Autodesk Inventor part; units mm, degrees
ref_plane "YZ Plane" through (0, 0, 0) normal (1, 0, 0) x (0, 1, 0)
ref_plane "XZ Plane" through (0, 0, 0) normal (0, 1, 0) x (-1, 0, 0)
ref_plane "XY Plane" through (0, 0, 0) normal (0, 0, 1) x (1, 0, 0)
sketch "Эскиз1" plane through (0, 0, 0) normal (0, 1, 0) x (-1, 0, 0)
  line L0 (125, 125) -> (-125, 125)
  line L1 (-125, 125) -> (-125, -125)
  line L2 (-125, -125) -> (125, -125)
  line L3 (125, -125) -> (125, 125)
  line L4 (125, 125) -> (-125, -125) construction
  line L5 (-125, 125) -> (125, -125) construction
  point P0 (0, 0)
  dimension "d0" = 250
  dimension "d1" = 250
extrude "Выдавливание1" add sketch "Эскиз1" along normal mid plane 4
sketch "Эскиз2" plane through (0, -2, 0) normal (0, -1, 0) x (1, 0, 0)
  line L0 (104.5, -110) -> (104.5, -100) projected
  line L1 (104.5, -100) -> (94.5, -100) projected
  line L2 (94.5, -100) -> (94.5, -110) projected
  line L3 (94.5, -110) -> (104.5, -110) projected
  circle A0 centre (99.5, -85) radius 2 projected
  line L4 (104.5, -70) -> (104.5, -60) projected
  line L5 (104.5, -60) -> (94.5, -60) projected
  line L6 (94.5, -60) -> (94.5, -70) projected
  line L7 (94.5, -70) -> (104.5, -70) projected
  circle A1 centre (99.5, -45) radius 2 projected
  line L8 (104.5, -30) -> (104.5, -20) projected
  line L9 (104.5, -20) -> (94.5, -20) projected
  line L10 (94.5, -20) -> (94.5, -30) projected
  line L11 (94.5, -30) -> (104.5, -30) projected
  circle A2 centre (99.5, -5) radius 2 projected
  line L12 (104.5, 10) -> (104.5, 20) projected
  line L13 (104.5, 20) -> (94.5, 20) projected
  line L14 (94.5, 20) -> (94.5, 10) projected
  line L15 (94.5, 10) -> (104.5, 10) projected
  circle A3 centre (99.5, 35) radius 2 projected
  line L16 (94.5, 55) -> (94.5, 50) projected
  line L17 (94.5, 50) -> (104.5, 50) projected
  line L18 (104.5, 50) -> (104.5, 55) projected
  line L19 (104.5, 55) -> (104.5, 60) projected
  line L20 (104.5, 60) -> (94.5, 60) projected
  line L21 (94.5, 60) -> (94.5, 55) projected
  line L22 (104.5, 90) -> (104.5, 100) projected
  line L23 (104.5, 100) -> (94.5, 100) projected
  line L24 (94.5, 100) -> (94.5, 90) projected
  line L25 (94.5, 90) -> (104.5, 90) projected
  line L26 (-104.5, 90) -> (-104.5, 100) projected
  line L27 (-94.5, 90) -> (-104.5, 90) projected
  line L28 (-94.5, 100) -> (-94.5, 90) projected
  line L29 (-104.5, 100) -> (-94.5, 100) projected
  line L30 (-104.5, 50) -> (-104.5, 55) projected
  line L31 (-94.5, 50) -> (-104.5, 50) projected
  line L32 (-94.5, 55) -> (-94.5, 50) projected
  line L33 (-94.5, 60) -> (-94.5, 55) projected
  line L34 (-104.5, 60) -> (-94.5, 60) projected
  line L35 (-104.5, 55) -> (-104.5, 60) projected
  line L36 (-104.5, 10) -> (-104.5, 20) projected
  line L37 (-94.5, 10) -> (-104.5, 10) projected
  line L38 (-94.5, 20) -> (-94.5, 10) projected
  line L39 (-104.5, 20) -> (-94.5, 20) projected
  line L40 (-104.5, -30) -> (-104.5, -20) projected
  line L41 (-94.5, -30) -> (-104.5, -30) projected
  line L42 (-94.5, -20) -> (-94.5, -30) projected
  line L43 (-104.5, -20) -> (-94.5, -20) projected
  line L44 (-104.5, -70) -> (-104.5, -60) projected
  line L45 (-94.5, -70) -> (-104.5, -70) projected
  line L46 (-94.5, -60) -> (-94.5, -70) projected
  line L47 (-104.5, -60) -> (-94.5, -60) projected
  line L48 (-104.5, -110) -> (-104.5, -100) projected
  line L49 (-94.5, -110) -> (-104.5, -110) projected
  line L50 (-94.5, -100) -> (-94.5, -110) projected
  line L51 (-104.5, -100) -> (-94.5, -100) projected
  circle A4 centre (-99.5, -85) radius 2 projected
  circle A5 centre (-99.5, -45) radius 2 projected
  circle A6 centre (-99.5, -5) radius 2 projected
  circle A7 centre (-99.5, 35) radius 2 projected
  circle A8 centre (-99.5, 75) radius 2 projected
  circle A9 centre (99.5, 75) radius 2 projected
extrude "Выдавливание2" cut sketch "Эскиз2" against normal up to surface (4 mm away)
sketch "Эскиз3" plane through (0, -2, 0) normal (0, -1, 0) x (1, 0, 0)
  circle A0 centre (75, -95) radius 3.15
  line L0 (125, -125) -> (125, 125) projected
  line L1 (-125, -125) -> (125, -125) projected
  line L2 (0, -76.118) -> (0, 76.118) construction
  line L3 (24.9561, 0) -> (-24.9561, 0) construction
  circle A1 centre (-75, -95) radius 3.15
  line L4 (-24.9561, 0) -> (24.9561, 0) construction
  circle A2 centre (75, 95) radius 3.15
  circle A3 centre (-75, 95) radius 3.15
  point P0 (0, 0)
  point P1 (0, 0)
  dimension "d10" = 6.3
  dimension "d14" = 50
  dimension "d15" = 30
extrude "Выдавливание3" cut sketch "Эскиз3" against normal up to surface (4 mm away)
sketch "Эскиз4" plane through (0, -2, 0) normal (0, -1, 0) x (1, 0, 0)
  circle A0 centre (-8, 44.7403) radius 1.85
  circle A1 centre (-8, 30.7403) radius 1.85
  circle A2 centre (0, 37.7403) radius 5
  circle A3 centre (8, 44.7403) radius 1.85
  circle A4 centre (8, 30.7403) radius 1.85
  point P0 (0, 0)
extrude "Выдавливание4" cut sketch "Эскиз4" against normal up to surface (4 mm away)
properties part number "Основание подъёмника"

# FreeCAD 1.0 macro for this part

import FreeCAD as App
import Part
import Sketcher

V = App.Vector
Q = App.Units.Quantity


def add_polygon(sketch, points):
    """Adds a closed chain of lines whose ends are joined by coincident constraints."""
    first, n = sketch.GeometryCount, len(points)
    for a, b in zip(points, points[1:] + points[:1]):
        sketch.addGeometry(Part.LineSegment(App.Vector(*a, 0), App.Vector(*b, 0)), False)
    for i in range(n):
        sketch.addConstraint(Sketcher.Constraint("Coincident", first + i, 2, first + (i + 1) % n, 1))

doc = App.newDocument("Part")
body = doc.addObject("PartDesign::Body", "Body")

# Sketch on XZ plane
sketch1 = body.newObject("Sketcher::SketchObject", "Sketch")
sketch1.AttachmentSupport = (doc.getObject("XZ_Plane"), [""])
sketch1.MapMode = "FlatFace"
add_polygon(sketch1, [(-125, -125), (-125, 125), (125, 125), (125, -125)])  # lines 0-3
sketch1.addConstraint([
    Sketcher.Constraint("Vertical", 0),
    Sketcher.Constraint("Horizontal", 1),
    Sketcher.Constraint("Vertical", 2),
    Sketcher.Constraint("Horizontal", 3),
    Sketcher.Constraint("Symmetric", 0, 2, 2, 2, -1, 1),
    Sketcher.Constraint("Equal", 3, 0),
    Sketcher.Constraint("DistanceX", 1, 1, 1, 2, Q("250 mm")),
])
pad1 = body.newObject("PartDesign::Pad", "Pad")
pad1.Profile = sketch1
pad1.Length = 4
pad1.Midplane = True

# Sketch on XZ plane
sketch2 = body.newObject("Sketcher::SketchObject", "Sketch001")
sketch2.AttachmentSupport = (doc.getObject("XZ_Plane"), [""])
sketch2.MapMode = "FlatFace"
sketch2.AttachmentOffset = App.Placement(V(0, 0, 2), App.Rotation())
add_polygon(sketch2, [(94.5, -110), (104.5, -110), (104.5, -100), (94.5, -100)])  # lines 0-3
sketch2.addGeometry(Part.Circle(V(99.5, -85, 0), V(0, 0, 1), 2), False)  # 4
add_polygon(sketch2, [(94.5, -70), (104.5, -70), (104.5, -60), (94.5, -60)])  # lines 5-8
sketch2.addGeometry(Part.Circle(V(99.5, -45, 0), V(0, 0, 1), 2), False)  # 9
add_polygon(sketch2, [(94.5, -30), (104.5, -30), (104.5, -20), (94.5, -20)])  # lines 10-13
sketch2.addGeometry(Part.Circle(V(99.5, -5, 0), V(0, 0, 1), 2), False)  # 14
add_polygon(sketch2, [(94.5, 10), (104.5, 10), (104.5, 20), (94.5, 20)])  # lines 15-18
sketch2.addGeometry(Part.Circle(V(99.5, 35, 0), V(0, 0, 1), 2), False)  # 19
add_polygon(sketch2, [(94.5, 60), (94.5, 50), (104.5, 50), (104.5, 60)])  # lines 20-23
add_polygon(sketch2, [(94.5, 90), (104.5, 90), (104.5, 100), (94.5, 100)])  # lines 24-27
add_polygon(sketch2, [(-104.5, 100), (-104.5, 90), (-94.5, 90), (-94.5, 100)])  # lines 28-31
add_polygon(sketch2, [(-104.5, 60), (-104.5, 50), (-94.5, 50), (-94.5, 60)])  # lines 32-35
add_polygon(sketch2, [(-104.5, 20), (-104.5, 10), (-94.5, 10), (-94.5, 20)])  # lines 36-39
add_polygon(sketch2, [(-104.5, -20), (-104.5, -30), (-94.5, -30), (-94.5, -20)])  # lines 40-43
add_polygon(sketch2, [(-104.5, -60), (-104.5, -70), (-94.5, -70), (-94.5, -60)])  # lines 44-47
add_polygon(sketch2, [(-104.5, -100), (-104.5, -110), (-94.5, -110), (-94.5, -100)])  # lines 48-51
sketch2.addGeometry(Part.Circle(V(-99.5, -85, 0), V(0, 0, 1), 2), False)  # 52
sketch2.addGeometry(Part.Circle(V(-99.5, -45, 0), V(0, 0, 1), 2), False)  # 53
sketch2.addGeometry(Part.Circle(V(-99.5, -5, 0), V(0, 0, 1), 2), False)  # 54
sketch2.addGeometry(Part.Circle(V(-99.5, 35, 0), V(0, 0, 1), 2), False)  # 55
sketch2.addGeometry(Part.Circle(V(-99.5, 75, 0), V(0, 0, 1), 2), False)  # 56
sketch2.addGeometry(Part.Circle(V(99.5, 75, 0), V(0, 0, 1), 2), False)  # 57
sketch2.addConstraint([
    Sketcher.Constraint("Horizontal", 0),
    Sketcher.Constraint("Vertical", 1),
    Sketcher.Constraint("Horizontal", 2),
    Sketcher.Constraint("Vertical", 3),
    Sketcher.Constraint("Horizontal", 5),
    Sketcher.Constraint("Vertical", 6),
    Sketcher.Constraint("Horizontal", 7),
    Sketcher.Constraint("Vertical", 8),
    Sketcher.Constraint("Horizontal", 10),
    Sketcher.Constraint("Vertical", 11),
    Sketcher.Constraint("Horizontal", 12),
    Sketcher.Constraint("Vertical", 13),
    Sketcher.Constraint("Horizontal", 15),
    Sketcher.Constraint("Vertical", 16),
    Sketcher.Constraint("Horizontal", 17),
    Sketcher.Constraint("Vertical", 18),
    Sketcher.Constraint("Vertical", 20),
    Sketcher.Constraint("Horizontal", 21),
    Sketcher.Constraint("Vertical", 22),
    Sketcher.Constraint("Horizontal", 23),
    Sketcher.Constraint("Horizontal", 24),
    Sketcher.Constraint("Vertical", 25),
    Sketcher.Constraint("Horizontal", 26),
    Sketcher.Constraint("Vertical", 27),
    Sketcher.Constraint("Vertical", 28),
    Sketcher.Constraint("Horizontal", 29),
    Sketcher.Constraint("Vertical", 30),
    Sketcher.Constraint("Horizontal", 31),
    Sketcher.Constraint("Vertical", 32),
    Sketcher.Constraint("Horizontal", 33),
    Sketcher.Constraint("Vertical", 34),
    Sketcher.Constraint("Horizontal", 35),
    Sketcher.Constraint("Vertical", 36),
    Sketcher.Constraint("Horizontal", 37),
    Sketcher.Constraint("Vertical", 38),
    Sketcher.Constraint("Horizontal", 39),
    Sketcher.Constraint("Vertical", 40),
    Sketcher.Constraint("Horizontal", 41),
    Sketcher.Constraint("Vertical", 42),
    Sketcher.Constraint("Horizontal", 43),
    Sketcher.Constraint("Vertical", 44),
    Sketcher.Constraint("Horizontal", 45),
    Sketcher.Constraint("Vertical", 46),
    Sketcher.Constraint("Horizontal", 47),
    Sketcher.Constraint("Vertical", 48),
    Sketcher.Constraint("Horizontal", 49),
    Sketcher.Constraint("Vertical", 50),
    Sketcher.Constraint("Horizontal", 51),
    Sketcher.Constraint("Equal", 4, 9),
    Sketcher.Constraint("Equal", 9, 14),
    Sketcher.Constraint("Equal", 14, 19),
    Sketcher.Constraint("Equal", 19, 52),
    Sketcher.Constraint("Equal", 52, 53),
    Sketcher.Constraint("Equal", 53, 54),
    Sketcher.Constraint("Equal", 54, 55),
    Sketcher.Constraint("Equal", 55, 56),
    Sketcher.Constraint("Equal", 56, 57),
    Sketcher.Constraint("Symmetric", 2, 2, 30, 2, -1, 1),
    Sketcher.Constraint("Symmetric", 7, 2, 34, 2, -1, 1),
    Sketcher.Constraint("Symmetric", 12, 2, 38, 2, -1, 1),
    Sketcher.Constraint("Symmetric", 17, 2, 42, 2, -1, 1),
    Sketcher.Constraint("Symmetric", 23, 2, 46, 2, -1, 1),
    Sketcher.Constraint("Symmetric", 26, 2, 50, 2, -1, 1),
    Sketcher.Constraint("Symmetric", 4, 3, 52, 3, -2),
    Sketcher.Constraint("Symmetric", 9, 3, 53, 3, -2),
    Sketcher.Constraint("Symmetric", 14, 3, 54, 3, -2),
    Sketcher.Constraint("Symmetric", 19, 3, 55, 3, -2),
    Sketcher.Constraint("Symmetric", 56, 3, 57, 3, -2),
    Sketcher.Constraint("Symmetric", 24, 2, 28, 2, -2),
    Sketcher.Constraint("Symmetric", 26, 2, 30, 2, -2),
    Sketcher.Constraint("Symmetric", 21, 2, 32, 2, -2),
    Sketcher.Constraint("Symmetric", 23, 2, 34, 2, -2),
    Sketcher.Constraint("Symmetric", 15, 2, 36, 2, -2),
    Sketcher.Constraint("Symmetric", 17, 2, 38, 2, -2),
    Sketcher.Constraint("Symmetric", 10, 2, 40, 2, -2),
    Sketcher.Constraint("Symmetric", 5, 2, 44, 2, -2),
    Sketcher.Constraint("Symmetric", 0, 2, 48, 2, -2),
    Sketcher.Constraint("Vertical", 4, 3, 9, 3),
    Sketcher.Constraint("Vertical", 9, 3, 14, 3),
    Sketcher.Constraint("Vertical", 14, 3, 19, 3),
    Sketcher.Constraint("Vertical", 55, 3, 56, 3),
    Sketcher.Constraint("Vertical", 1, 2, 5, 2),
    Sketcher.Constraint("Vertical", 3, 2, 7, 2),
    Sketcher.Constraint("Vertical", 6, 2, 10, 2),
    Sketcher.Constraint("Vertical", 8, 2, 12, 2),
    Sketcher.Constraint("Vertical", 11, 2, 15, 2),
    Sketcher.Constraint("Vertical", 16, 2, 21, 2),
    Sketcher.Constraint("Vertical", 22, 2, 24, 2),
    Sketcher.Constraint("Equal", 51, 1),
    Sketcher.Constraint("Equal", 3, 6),
    Sketcher.Constraint("Equal", 8, 11),
    Sketcher.Constraint("Equal", 13, 16),
    Sketcher.Constraint("Equal", 18, 20),
    Sketcher.Constraint("Equal", 22, 25),
    Sketcher.Constraint("Diameter", 4, Q("4 mm")),
    Sketcher.Constraint("DistanceX", 0, 1, 0, 2, Q("10 mm")),
    Sketcher.Constraint("DistanceY", 4, 3, -1, 1, Q("85 mm")),
    Sketcher.Constraint("DistanceY", 9, 3, -1, 1, Q("45 mm")),
    Sketcher.Constraint("DistanceY", 14, 3, -1, 1, Q("5 mm")),
    Sketcher.Constraint("DistanceY", -1, 1, 19, 3, Q("35 mm")),
    Sketcher.Constraint("DistanceY", -1, 1, 56, 3, Q("75 mm")),
    Sketcher.Constraint("DistanceY", 0, 2, -1, 1, Q("110 mm")),
    Sketcher.Constraint("DistanceY", 5, 2, -1, 1, Q("70 mm")),
    Sketcher.Constraint("DistanceY", 10, 2, -1, 1, Q("30 mm")),
    Sketcher.Constraint("DistanceX", 52, 3, 4, 3, Q("199 mm")),
    Sketcher.Constraint("DistanceX", 4, 3, 0, 2, Q("5 mm")),
])
pocket1 = body.newObject("PartDesign::Pocket", "Pocket")
pocket1.Profile = sketch2
pocket1.Length = 4

# Sketch on XZ plane
sketch3 = body.newObject("Sketcher::SketchObject", "Sketch002")
sketch3.AttachmentSupport = (doc.getObject("XZ_Plane"), [""])
sketch3.MapMode = "FlatFace"
sketch3.AttachmentOffset = App.Placement(V(0, 0, 2), App.Rotation())
sketch3.addGeometry([
    Part.Circle(V(75, -95, 0), V(0, 0, 1), 3.1),
    Part.Circle(V(-75, -95, 0), V(0, 0, 1), 3.1),
    Part.Circle(V(75, 95, 0), V(0, 0, 1), 3.1),
    Part.Circle(V(-75, 95, 0), V(0, 0, 1), 3.1),
], False)
sketch3.addConstraint([
    Sketcher.Constraint("Equal", 0, 1),
    Sketcher.Constraint("Equal", 1, 2),
    Sketcher.Constraint("Equal", 2, 3),
    Sketcher.Constraint("Symmetric", 1, 3, 2, 3, -1, 1),
    Sketcher.Constraint("Symmetric", 0, 3, 3, 3, -1, 1),
    Sketcher.Constraint("Symmetric", 0, 3, 1, 3, -2),
    Sketcher.Constraint("Diameter", 0, Q("6.3 mm")),
    Sketcher.Constraint("DistanceX", -1, 1, 0, 3, Q("75 mm")),
    Sketcher.Constraint("DistanceY", 0, 3, -1, 1, Q("95 mm")),
])
pocket2 = body.newObject("PartDesign::Pocket", "Pocket001")
pocket2.Profile = sketch3
pocket2.Length = 4

# Sketch on XZ plane
sketch4 = body.newObject("Sketcher::SketchObject", "Sketch003")
sketch4.AttachmentSupport = (doc.getObject("XZ_Plane"), [""])
sketch4.MapMode = "FlatFace"
sketch4.AttachmentOffset = App.Placement(V(0, 0, 2), App.Rotation())
sketch4.addGeometry([
    Part.Circle(V(-8, 44.7, 0), V(0, 0, 1), 1.9),  # 0
    Part.Circle(V(-8, 30.7, 0), V(0, 0, 1), 1.9),  # 1
    Part.Circle(V(0, 37.7, 0), V(0, 0, 1), 5),  # 2
    Part.Circle(V(8, 44.7, 0), V(0, 0, 1), 1.9),  # 3
    Part.Circle(V(8, 30.7, 0), V(0, 0, 1), 1.9),  # 4
], False)
sketch4.addConstraint([
    Sketcher.Constraint("Equal", 0, 1),
    Sketcher.Constraint("Equal", 1, 3),
    Sketcher.Constraint("Equal", 3, 4),
    Sketcher.Constraint("Symmetric", 0, 3, 3, 3, -2),
    Sketcher.Constraint("Symmetric", 1, 3, 4, 3, -2),
    Sketcher.Constraint("PointOnObject", 2, 3, -2),
    Sketcher.Constraint("Vertical", 0, 3, 1, 3),
    Sketcher.Constraint("Diameter", 2, Q("10 mm")),
    Sketcher.Constraint("Diameter", 0, Q("3.7 mm")),
    Sketcher.Constraint("DistanceX", 0, 3, -1, 1, Q("8 mm")),
    Sketcher.Constraint("DistanceY", 1, 3, 0, 3, Q("14 mm")),
    Sketcher.Constraint("DistanceY", 1, 3, 2, 3, Q("7 mm")),
    Sketcher.Constraint("DistanceY", -1, 1, 0, 3, Q("44.7403 mm")),
])
pocket3 = body.newObject("PartDesign::Pocket", "Pocket002")
pocket3.Profile = sketch4
pocket3.Length = 4

doc.recompute()
